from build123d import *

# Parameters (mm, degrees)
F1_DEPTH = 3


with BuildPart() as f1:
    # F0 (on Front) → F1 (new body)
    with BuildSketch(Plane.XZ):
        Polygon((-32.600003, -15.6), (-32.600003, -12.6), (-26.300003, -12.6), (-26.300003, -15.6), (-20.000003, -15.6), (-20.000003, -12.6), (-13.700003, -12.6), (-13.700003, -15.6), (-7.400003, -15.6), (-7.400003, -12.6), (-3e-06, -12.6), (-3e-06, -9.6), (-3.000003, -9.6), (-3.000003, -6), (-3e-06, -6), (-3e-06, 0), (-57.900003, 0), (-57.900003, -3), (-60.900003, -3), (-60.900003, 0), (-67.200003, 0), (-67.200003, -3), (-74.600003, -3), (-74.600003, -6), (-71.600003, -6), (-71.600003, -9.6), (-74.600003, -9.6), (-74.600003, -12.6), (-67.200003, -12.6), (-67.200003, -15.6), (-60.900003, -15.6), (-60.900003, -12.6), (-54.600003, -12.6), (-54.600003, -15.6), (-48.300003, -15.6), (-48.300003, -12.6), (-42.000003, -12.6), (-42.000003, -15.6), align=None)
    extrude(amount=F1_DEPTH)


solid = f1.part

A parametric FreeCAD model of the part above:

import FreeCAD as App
import Part
import Sketcher


def add_polygon(sketch, points):
    """Adds a closed chain of lines whose ends are joined by coincident constraints."""
    first, n = sketch.GeometryCount, len(points)
    for a, b in zip(points, points[1:] + points[:1]):
        sketch.addGeometry(Part.LineSegment(App.Vector(*a, 0), App.Vector(*b, 0)), False)
    for i in range(n):
        sketch.addConstraint(Sketcher.Constraint("Coincident", first + i, 2, first + (i + 1) % n, 1))

doc = App.newDocument("Part")
body = doc.addObject("PartDesign::Body", "Body")

# Sketch on XZ plane
sketch1 = body.newObject("Sketcher::SketchObject", "Sketch")
sketch1.AttachmentSupport = (doc.getObject("XZ_Plane"), [""])
sketch1.MapMode = "FlatFace"
add_polygon(sketch1, [(-32.6, -15.6), (-32.6, -12.6), (-26.3, -12.6), (-26.3, -15.6), (-20, -15.6), (-20, -12.6), (-13.7, -12.6), (-13.7, -15.6), (-7.4, -15.6), (-7.4, -12.6), (0, -12.6), (0, -9.6), (-3, -9.6), (-3, -6), (0, -6), (0, 0), (-57.9, 0), (-57.9, -3), (-60.9, -3), (-60.9, 0), (-67.2, 0), (-67.2, -3), (-74.6, -3), (-74.6, -6), (-71.6, -6), (-71.6, -9.6), (-74.6, -9.6), (-74.6, -12.6), (-67.2, -12.6), (-67.2, -15.6), (-60.9, -15.6), (-60.9, -12.6), (-54.6, -12.6), (-54.6, -15.6), (-48.3, -15.6), (-48.3, -12.6), (-42, -12.6), (-42, -15.6)])  # lines 0-37
sketch1.addConstraint([
    Sketcher.Constraint("Vertical", 0),
    Sketcher.Constraint("Horizontal", 1),
    Sketcher.Constraint("Vertical", 2),
    Sketcher.Constraint("Horizontal", 3),
    Sketcher.Constraint("Vertical", 4),
    Sketcher.Constraint("Horizontal", 5),
    Sketcher.Constraint("Vertical", 6),
    Sketcher.Constraint("Horizontal", 7),
    Sketcher.Constraint("Vertical", 8),
    Sketcher.Constraint("Horizontal", 9),
    Sketcher.Constraint("Vertical", 10),
    Sketcher.Constraint("Horizontal", 11),
    Sketcher.Constraint("Vertical", 12),
    Sketcher.Constraint("Horizontal", 13),
    Sketcher.Constraint("Vertical", 14),
    Sketcher.Constraint("Horizontal", 15),
    Sketcher.Constraint("Vertical", 16),
    Sketcher.Constraint("Horizontal", 17),
    Sketcher.Constraint("Vertical", 18),
    Sketcher.Constraint("Horizontal", 19),
    Sketcher.Constraint("Vertical", 20),
    Sketcher.Constraint("Horizontal", 21),
    Sketcher.Constraint("Vertical", 22),
    Sketcher.Constraint("Horizontal", 23),
    Sketcher.Constraint("Vertical", 24),
    Sketcher.Constraint("Horizontal", 25),
    Sketcher.Constraint("Vertical", 26),
    Sketcher.Constraint("Horizontal", 27),
    Sketcher.Constraint("Vertical", 28),
    Sketcher.Constraint("Horizontal", 29),
    Sketcher.Constraint("Vertical", 30),
    Sketcher.Constraint("Horizontal", 31),
    Sketcher.Constraint("Vertical", 32),
    Sketcher.Constraint("Horizontal", 33),
    Sketcher.Constraint("Vertical", 34),
    Sketcher.Constraint("Horizontal", 35),
    Sketcher.Constraint("Vertical", 36),
    Sketcher.Constraint("Horizontal", 37),
    Sketcher.Constraint("Coincident", 14, 2, -1, 1),
    Sketcher.Constraint("PointOnObject", 18, 2, -1),
    Sketcher.Constraint("Horizontal", 1, 2, 4, 2),
    Sketcher.Constraint("Horizontal", 3, 2, 6, 2),
    Sketcher.Constraint("Horizontal", 5, 2, 8, 2),
    Sketcher.Constraint("Horizontal", 17, 2, 20, 2),
    Sketcher.Constraint("Horizontal", 13, 2, 22, 2),
    Sketcher.Constraint("Horizontal", 11, 2, 24, 2),
    Sketcher.Constraint("Horizontal", 9, 2, 26, 2),
    Sketcher.Constraint("Horizontal", 7, 2, 28, 2),
    Sketcher.Constraint("Horizontal", 27, 2, 30, 2),
    Sketcher.Constraint("Horizontal", 29, 2, 32, 2),
    Sketcher.Constraint("Horizontal", 31, 2, 34, 2),
    Sketcher.Constraint("Horizontal", 33, 2, 36, 2),
    Sketcher.Constraint("Vertical", 10, 2, 13, 2),
    Sketcher.Constraint("Vertical", 22, 2, 25, 2),
    Sketcher.Constraint("Vertical", 20, 2, 27, 2),
    Sketcher.Constraint("Vertical", 18, 2, 29, 2),
    Sketcher.Constraint("Equal", 1, 3),
    Sketcher.Constraint("Equal", 3, 5),
    Sketcher.Constraint("Equal", 5, 7),
    Sketcher.Constraint("Equal", 13, 17),
    Sketcher.Constraint("Equal", 7, 19),
    Sketcher.Constraint("Equal", 9, 21),
    Sketcher.Constraint("Equal", 17, 23),
    Sketcher.Constraint("Equal", 29, 31),
    Sketcher.Constraint("Equal", 31, 33),
    Sketcher.Constraint("Equal", 33, 35),
    Sketcher.Constraint("Equal", 25, 0),
    Sketcher.Constraint("Equal", 8, 10),
    Sketcher.Constraint("Equal", 10, 16),
    Sketcher.Constraint("Equal", 20, 22),
    Sketcher.Constraint("DistanceX", 11, 2, 11, 1, 3.0),
    Sketcher.Constraint("DistanceX", 1, 1, 1, 2, 6.3),
    Sketcher.Constraint("DistanceX", 9, 1, 9, 2, 7.4),
    Sketcher.Constraint("DistanceX", 15, 2, 15, 1, 57.9),
    Sketcher.Constraint("DistanceY", 12, 1, 12, 2, 3.6),
])
pad1 = body.newObject("PartDesign::Pad", "Pad")
pad1.Profile = sketch1
pad1.Length = 3

doc.recompute()
